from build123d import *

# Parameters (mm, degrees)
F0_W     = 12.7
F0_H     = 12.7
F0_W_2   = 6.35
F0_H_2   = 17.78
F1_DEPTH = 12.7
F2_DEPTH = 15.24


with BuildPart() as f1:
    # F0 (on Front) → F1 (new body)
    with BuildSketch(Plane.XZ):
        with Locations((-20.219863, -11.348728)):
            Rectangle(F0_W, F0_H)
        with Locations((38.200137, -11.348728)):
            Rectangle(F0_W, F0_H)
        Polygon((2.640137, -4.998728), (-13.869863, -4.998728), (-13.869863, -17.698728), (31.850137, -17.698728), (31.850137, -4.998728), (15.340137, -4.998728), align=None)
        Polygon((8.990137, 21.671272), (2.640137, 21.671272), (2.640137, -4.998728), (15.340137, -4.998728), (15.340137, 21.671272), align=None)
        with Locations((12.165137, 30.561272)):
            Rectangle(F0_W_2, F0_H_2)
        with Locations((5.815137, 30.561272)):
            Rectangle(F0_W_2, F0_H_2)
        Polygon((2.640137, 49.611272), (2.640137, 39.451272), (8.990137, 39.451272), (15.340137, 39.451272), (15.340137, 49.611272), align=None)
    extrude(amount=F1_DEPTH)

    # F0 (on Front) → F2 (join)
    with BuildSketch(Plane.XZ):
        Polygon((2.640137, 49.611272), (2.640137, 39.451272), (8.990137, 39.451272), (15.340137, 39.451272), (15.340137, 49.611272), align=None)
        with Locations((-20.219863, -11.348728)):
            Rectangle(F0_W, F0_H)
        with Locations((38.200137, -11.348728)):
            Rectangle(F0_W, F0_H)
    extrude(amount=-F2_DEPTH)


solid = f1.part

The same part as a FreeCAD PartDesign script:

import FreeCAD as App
import Part
import Sketcher

V = App.Vector
Q = App.Units.Quantity

doc = App.newDocument("Part")
body = doc.addObject("PartDesign::Body", "Body")

# Sketch on XZ plane
sketch1 = body.newObject("Sketcher::SketchObject", "Sketch")
sketch1.AttachmentSupport = (doc.getObject("XZ_Plane"), [""])
sketch1.MapMode = "FlatFace"
sketch1.addGeometry([
    Part.LineSegment(V(-27, -5, 0), V(-27, -18, 0)),  # 0
    Part.LineSegment(V(-27, -18, 0), V(45, -18, 0)),  # 1
    Part.LineSegment(V(45, -18, 0), V(45, -5, 0)),  # 2
    Part.LineSegment(V(45, -5, 0), V(15, -5, 0)),  # 3
    Part.LineSegment(V(15, -5, 0), V(15, 50, 0)),  # 4
    Part.LineSegment(V(15, 50, 0), V(3, 50, 0)),  # 5
    Part.LineSegment(V(3, 50, 0), V(3, -5, 0)),  # 6
    Part.LineSegment(V(3, -5, 0), V(-27, -5, 0)),  # 7
], False)
sketch1.addConstraint([
    Sketcher.Constraint("Coincident", 0, 2, 1, 1),
    Sketcher.Constraint("Coincident", 1, 2, 2, 1),
    Sketcher.Constraint("Coincident", 2, 2, 3, 1),
    Sketcher.Constraint("Coincident", 3, 2, 4, 1),
    Sketcher.Constraint("Coincident", 4, 2, 5, 1),
    Sketcher.Constraint("Coincident", 5, 2, 6, 1),
    Sketcher.Constraint("Coincident", 6, 2, 7, 1),
    Sketcher.Constraint("Coincident", 7, 2, 0, 1),
    Sketcher.Constraint("Vertical", 0),
    Sketcher.Constraint("Horizontal", 1),
    Sketcher.Constraint("Vertical", 2),
    Sketcher.Constraint("Horizontal", 3),
    Sketcher.Constraint("Vertical", 4),
    Sketcher.Constraint("Horizontal", 5),
    Sketcher.Constraint("Vertical", 6),
    Sketcher.Constraint("Horizontal", 7),
    Sketcher.Constraint("Horizontal", 3, 2, 6, 2),
    Sketcher.Constraint("Equal", 3, 7),
    Sketcher.Constraint("Equal", 5, 0),
    Sketcher.Constraint("DistanceX", 1, 1, 1, 2, Q("2.8 in")),
    Sketcher.Constraint("DistanceX", 5, 2, 5, 1, Q("0.5 in")),
    Sketcher.Constraint("DistanceY", 4, 1, 4, 2, Q("2.15 in")),
    Sketcher.Constraint("DistanceX", 0, 2, -1, 1, Q("26.569863 mm")),
    Sketcher.Constraint("DistanceY", 0, 2, -1, 1, Q("17.698728 mm")),
])
pad1 = body.newObject("PartDesign::Pad", "Pad")
pad1.Profile = sketch1
pad1.Length = Q("0.5 in")

# Sketch on XZ plane
sketch2 = body.newObject("Sketcher::SketchObject", "Sketch001")
sketch2.AttachmentSupport = (doc.getObject("XZ_Plane"), [""])
sketch2.MapMode = "FlatFace"
sketch2.addGeometry([
    Part.LineSegment(V(3, 50, 0), V(3, 39, 0)),  # 0
    Part.LineSegment(V(3, 39, 0), V(15, 39, 0)),  # 1
    Part.LineSegment(V(15, 39, 0), V(15, 50, 0)),  # 2
    Part.LineSegment(V(15, 50, 0), V(3, 50, 0)),  # 3
    Part.LineSegment(V(-27, -5, 0), V(-27, -18, 0)),  # 4
    Part.LineSegment(V(-27, -18, 0), V(-14, -18, 0)),  # 5
    Part.LineSegment(V(-14, -18, 0), V(-14, -5, 0)),  # 6
    Part.LineSegment(V(-14, -5, 0), V(-27, -5, 0)),  # 7
    Part.LineSegment(V(32, -5, 0), V(32, -18, 0)),  # 8
    Part.LineSegment(V(32, -18, 0), V(45, -18, 0)),  # 9
    Part.LineSegment(V(45, -18, 0), V(45, -5, 0)),  # 10
    Part.LineSegment(V(45, -5, 0), V(32, -5, 0)),  # 11
], False)
sketch2.addConstraint([
    Sketcher.Constraint("Coincident", 0, 2, 1, 1),
    Sketcher.Constraint("Coincident", 1, 2, 2, 1),
    Sketcher.Constraint("Coincident", 2, 2, 3, 1),
    Sketcher.Constraint("Coincident", 3, 2, 0, 1),
    Sketcher.Constraint("Coincident", 4, 2, 5, 1),
    Sketcher.Constraint("Coincident", 5, 2, 6, 1),
    Sketcher.Constraint("Coincident", 6, 2, 7, 1),
    Sketcher.Constraint("Coincident", 7, 2, 4, 1),
    Sketcher.Constraint("Coincident", 8, 2, 9, 1),
    Sketcher.Constraint("Coincident", 9, 2, 10, 1),
    Sketcher.Constraint("Coincident", 10, 2, 11, 1),
    Sketcher.Constraint("Coincident", 11, 2, 8, 1),
    Sketcher.Constraint("Vertical", 0),
    Sketcher.Constraint("Horizontal", 1),
    Sketcher.Constraint("Vertical", 2),
    Sketcher.Constraint("Horizontal", 3),
    Sketcher.Constraint("Vertical", 4),
    Sketcher.Constraint("Horizontal", 5),
    Sketcher.Constraint("Vertical", 6),
    Sketcher.Constraint("Horizontal", 7),
    Sketcher.Constraint("Vertical", 8),
    Sketcher.Constraint("Horizontal", 9),
    Sketcher.Constraint("Vertical", 10),
    Sketcher.Constraint("Horizontal", 11),
    Sketcher.Constraint("Horizontal", 5, 2, 8, 2),
    Sketcher.Constraint("Horizontal", 7, 2, 10, 2),
    Sketcher.Constraint("Equal", 3, 5),
    Sketcher.Constraint("Equal", 7, 9),
    Sketcher.Constraint("Equal", 11, 4),
    Sketcher.Constraint("DistanceX", 1, 1, 1, 2, Q("0.5 in")),
    Sketcher.Constraint("DistanceY", 0, 2, 0, 1, Q("0.4 in")),
    Sketcher.Constraint("DistanceX", 5, 2, 8, 2, Q("1.8 in")),
    Sketcher.Constraint("DistanceX", 4, 2, 0, 2, Q("1.15 in")),
    Sketcher.Constraint("DistanceY", 4, 2, 0, 2, Q("2.25 in")),
    Sketcher.Constraint("DistanceX", -1, 1, 0, 2, Q("2.640137 mm")),
    Sketcher.Constraint("DistanceY", -1, 1, 0, 2, Q("39.451272 mm")),
])
pad2 = body.newObject("PartDesign::Pad", "Pad001")
pad2.Profile = sketch2
pad2.Length = Q("0.6 in")
pad2.Reversed = True

doc.recompute()
